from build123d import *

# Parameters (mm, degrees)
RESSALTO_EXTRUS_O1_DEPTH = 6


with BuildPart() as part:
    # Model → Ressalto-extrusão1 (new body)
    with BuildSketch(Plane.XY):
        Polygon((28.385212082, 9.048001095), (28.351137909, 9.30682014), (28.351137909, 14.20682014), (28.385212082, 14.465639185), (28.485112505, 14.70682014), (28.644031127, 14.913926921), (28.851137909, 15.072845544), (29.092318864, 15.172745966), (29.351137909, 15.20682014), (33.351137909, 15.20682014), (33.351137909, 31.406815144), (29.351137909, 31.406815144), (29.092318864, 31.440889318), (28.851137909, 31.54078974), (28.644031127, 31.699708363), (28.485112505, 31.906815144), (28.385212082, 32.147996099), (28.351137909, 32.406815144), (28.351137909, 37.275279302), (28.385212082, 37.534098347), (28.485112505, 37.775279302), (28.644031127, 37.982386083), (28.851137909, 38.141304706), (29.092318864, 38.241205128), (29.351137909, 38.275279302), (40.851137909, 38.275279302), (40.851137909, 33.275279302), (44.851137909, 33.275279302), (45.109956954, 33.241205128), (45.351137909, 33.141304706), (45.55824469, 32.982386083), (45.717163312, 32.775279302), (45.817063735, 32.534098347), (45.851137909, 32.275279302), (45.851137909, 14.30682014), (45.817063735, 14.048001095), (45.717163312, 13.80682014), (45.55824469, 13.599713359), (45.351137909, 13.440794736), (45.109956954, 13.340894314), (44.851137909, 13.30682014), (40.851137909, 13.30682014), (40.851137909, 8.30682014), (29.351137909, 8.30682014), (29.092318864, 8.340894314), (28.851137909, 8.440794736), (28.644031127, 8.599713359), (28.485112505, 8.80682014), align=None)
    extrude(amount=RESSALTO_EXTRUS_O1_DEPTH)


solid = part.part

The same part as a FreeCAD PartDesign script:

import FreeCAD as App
import Part
import Sketcher
from FreeCAD import Vector
Q = App.Units.Quantity

doc = App.newDocument("Part")
params = doc.addObject("Spreadsheet::Sheet", "Params")
for row, (alias, value) in enumerate([
    ("sketch1_width", "4 mm"),
    ("sketch1_height", "5 mm"),
    ("sketch1_width2", "11.5 mm"),
    ("sketch1_height2", "4.9 mm"),
    ("pad1_length", "6 mm"),
], start=1):
    params.set(f"A{row}", alias)
    params.set(f"B{row}", "=" + value)
    params.setAlias(f"B{row}", alias)

body = doc.addObject("PartDesign::Body", "Body")

# Sketch on XY plane
sketch1 = body.newObject("Sketcher::SketchObject", "Sketch")
sketch1.AttachmentSupport = (doc.getObject("XY_Plane"), [""])
sketch1.MapMode = "FlatFace"
sketch1.addGeometry([
    Part.LineSegment(Vector(28.351138, 9.30682, 0), Vector(28.385212, 9.048001, 0)),  # 0
    Part.LineSegment(Vector(28.385212, 9.048001, 0), Vector(28.485113, 8.80682, 0)),  # 1
    Part.LineSegment(Vector(28.485113, 8.80682, 0), Vector(28.644031, 8.599713, 0)),  # 2
    Part.LineSegment(Vector(28.644031, 8.599713, 0), Vector(28.851138, 8.440795, 0)),  # 3
    Part.LineSegment(Vector(28.851138, 8.440795, 0), Vector(29.092319, 8.340894, 0)),  # 4
    Part.LineSegment(Vector(29.092319, 8.340894, 0), Vector(29.351138, 8.30682, 0)),  # 5
    Part.LineSegment(Vector(29.351138, 8.30682, 0), Vector(40.851138, 8.30682, 0)),  # 6
    Part.LineSegment(Vector(40.851138, 8.30682, 0), Vector(40.851138, 13.30682, 0)),  # 7
    Part.LineSegment(Vector(40.851138, 13.30682, 0), Vector(44.851138, 13.30682, 0)),  # 8
    Part.LineSegment(Vector(44.851138, 13.30682, 0), Vector(45.109957, 13.340894, 0)),  # 9
    Part.LineSegment(Vector(45.109957, 13.340894, 0), Vector(45.351138, 13.440795, 0)),  # 10
    Part.LineSegment(Vector(45.351138, 13.440795, 0), Vector(45.558245, 13.599713, 0)),  # 11
    Part.LineSegment(Vector(45.558245, 13.599713, 0), Vector(45.717163, 13.80682, 0)),  # 12
    Part.LineSegment(Vector(45.717163, 13.80682, 0), Vector(45.817064, 14.048001, 0)),  # 13
    Part.LineSegment(Vector(45.817064, 14.048001, 0), Vector(45.851138, 14.30682, 0)),  # 14
    Part.LineSegment(Vector(45.851138, 14.30682, 0), Vector(45.851138, 32.275279, 0)),  # 15
    Part.LineSegment(Vector(45.851138, 32.275279, 0), Vector(45.817064, 32.534098, 0)),  # 16
    Part.LineSegment(Vector(45.817064, 32.534098, 0), Vector(45.717163, 32.775279, 0)),  # 17
    Part.LineSegment(Vector(45.717163, 32.775279, 0), Vector(45.558245, 32.982386, 0)),  # 18
    Part.LineSegment(Vector(45.558245, 32.982386, 0), Vector(45.351138, 33.141305, 0)),  # 19
    Part.LineSegment(Vector(45.351138, 33.141305, 0), Vector(45.109957, 33.241205, 0)),  # 20
    Part.LineSegment(Vector(45.109957, 33.241205, 0), Vector(44.851138, 33.275279, 0)),  # 21
    Part.LineSegment(Vector(44.851138, 33.275279, 0), Vector(40.851138, 33.275279, 0)),  # 22
    Part.LineSegment(Vector(40.851138, 33.275279, 0), Vector(40.851138, 38.275279, 0)),  # 23
    Part.LineSegment(Vector(40.851138, 38.275279, 0), Vector(29.351138, 38.275279, 0)),  # 24
    Part.LineSegment(Vector(29.351138, 38.275279, 0), Vector(29.092319, 38.241205, 0)),  # 25
    Part.LineSegment(Vector(29.092319, 38.241205, 0), Vector(28.851138, 38.141305, 0)),  # 26
    Part.LineSegment(Vector(28.851138, 38.141305, 0), Vector(28.644031, 37.982386, 0)),  # 27
    Part.LineSegment(Vector(28.644031, 37.982386, 0), Vector(28.485113, 37.775279, 0)),  # 28
    Part.LineSegment(Vector(28.485113, 37.775279, 0), Vector(28.385212, 37.534098, 0)),  # 29
    Part.LineSegment(Vector(28.385212, 37.534098, 0), Vector(28.351138, 37.275279, 0)),  # 30
    Part.LineSegment(Vector(28.351138, 37.275279, 0), Vector(28.351138, 32.406815, 0)),  # 31
    Part.LineSegment(Vector(28.351138, 32.406815, 0), Vector(28.385212, 32.147996, 0)),  # 32
    Part.LineSegment(Vector(28.385212, 32.147996, 0), Vector(28.485113, 31.906815, 0)),  # 33
    Part.LineSegment(Vector(28.485113, 31.906815, 0), Vector(28.644031, 31.699708, 0)),  # 34
    Part.LineSegment(Vector(28.644031, 31.699708, 0), Vector(28.851138, 31.54079, 0)),  # 35
    Part.LineSegment(Vector(28.851138, 31.54079, 0), Vector(29.092319, 31.440889, 0)),  # 36
    Part.LineSegment(Vector(29.092319, 31.440889, 0), Vector(29.351138, 31.406815, 0)),  # 37
    Part.LineSegment(Vector(29.351138, 31.406815, 0), Vector(33.351138, 31.406815, 0)),  # 38
    Part.LineSegment(Vector(33.351138, 31.406815, 0), Vector(33.351138, 15.20682, 0)),  # 39
    Part.LineSegment(Vector(33.351138, 15.20682, 0), Vector(29.351138, 15.20682, 0)),  # 40
    Part.LineSegment(Vector(29.351138, 15.20682, 0), Vector(29.092319, 15.172746, 0)),  # 41
    Part.LineSegment(Vector(29.092319, 15.172746, 0), Vector(28.851138, 15.072846, 0)),  # 42
    Part.LineSegment(Vector(28.851138, 15.072846, 0), Vector(28.644031, 14.913927, 0)),  # 43
    Part.LineSegment(Vector(28.644031, 14.913927, 0), Vector(28.485113, 14.70682, 0)),  # 44
    Part.LineSegment(Vector(28.485113, 14.70682, 0), Vector(28.385212, 14.465639, 0)),  # 45
    Part.LineSegment(Vector(28.385212, 14.465639, 0), Vector(28.351138, 14.20682, 0)),  # 46
    Part.LineSegment(Vector(28.351138, 14.20682, 0), Vector(28.351138, 9.30682, 0)),  # 47
], False)
sketch1.addConstraint([
    Sketcher.Constraint("Coincident", 0, 2, 1, 1),
    Sketcher.Constraint("Coincident", 1, 2, 2, 1),
    Sketcher.Constraint("Coincident", 2, 2, 3, 1),
    Sketcher.Constraint("Coincident", 3, 2, 4, 1),
    Sketcher.Constraint("Coincident", 4, 2, 5, 1),
    Sketcher.Constraint("Coincident", 5, 2, 6, 1),
    Sketcher.Constraint("Coincident", 6, 2, 7, 1),
    Sketcher.Constraint("Coincident", 7, 2, 8, 1),
    Sketcher.Constraint("Coincident", 8, 2, 9, 1),
    Sketcher.Constraint("Coincident", 9, 2, 10, 1),
    Sketcher.Constraint("Coincident", 10, 2, 11, 1),
    Sketcher.Constraint("Coincident", 11, 2, 12, 1),
    Sketcher.Constraint("Coincident", 12, 2, 13, 1),
    Sketcher.Constraint("Coincident", 13, 2, 14, 1),
    Sketcher.Constraint("Coincident", 14, 2, 15, 1),
    Sketcher.Constraint("Coincident", 15, 2, 16, 1),
    Sketcher.Constraint("Coincident", 16, 2, 17, 1),
    Sketcher.Constraint("Coincident", 17, 2, 18, 1),
    Sketcher.Constraint("Coincident", 18, 2, 19, 1),
    Sketcher.Constraint("Coincident", 19, 2, 20, 1),
    Sketcher.Constraint("Coincident", 20, 2, 21, 1),
    Sketcher.Constraint("Coincident", 21, 2, 22, 1),
    Sketcher.Constraint("Coincident", 22, 2, 23, 1),
    Sketcher.Constraint("Coincident", 23, 2, 24, 1),
    Sketcher.Constraint("Coincident", 24, 2, 25, 1),
    Sketcher.Constraint("Coincident", 25, 2, 26, 1),
    Sketcher.Constraint("Coincident", 26, 2, 27, 1),
    Sketcher.Constraint("Coincident", 27, 2, 28, 1),
    Sketcher.Constraint("Coincident", 28, 2, 29, 1),
    Sketcher.Constraint("Coincident", 29, 2, 30, 1),
    Sketcher.Constraint("Coincident", 30, 2, 31, 1),
    Sketcher.Constraint("Coincident", 31, 2, 32, 1),
    Sketcher.Constraint("Coincident", 32, 2, 33, 1),
    Sketcher.Constraint("Coincident", 33, 2, 34, 1),
    Sketcher.Constraint("Coincident", 34, 2, 35, 1),
    Sketcher.Constraint("Coincident", 35, 2, 36, 1),
    Sketcher.Constraint("Coincident", 36, 2, 37, 1),
    Sketcher.Constraint("Coincident", 37, 2, 38, 1),
    Sketcher.Constraint("Coincident", 38, 2, 39, 1),
    Sketcher.Constraint("Coincident", 39, 2, 40, 1),
    Sketcher.Constraint("Coincident", 40, 2, 41, 1),
    Sketcher.Constraint("Coincident", 41, 2, 42, 1),
    Sketcher.Constraint("Coincident", 42, 2, 43, 1),
    Sketcher.Constraint("Coincident", 43, 2, 44, 1),
    Sketcher.Constraint("Coincident", 44, 2, 45, 1),
    Sketcher.Constraint("Coincident", 45, 2, 46, 1),
    Sketcher.Constraint("Coincident", 46, 2, 47, 1),
    Sketcher.Constraint("Coincident", 47, 2, 0, 1),
    Sketcher.Constraint("Horizontal", 6),
    Sketcher.Constraint("Vertical", 7),
    Sketcher.Constraint("Horizontal", 8),
    Sketcher.Constraint("Vertical", 15),
    Sketcher.Constraint("Horizontal", 22),
    Sketcher.Constraint("Vertical", 23),
    Sketcher.Constraint("Horizontal", 24),
    Sketcher.Constraint("Vertical", 31),
    Sketcher.Constraint("Horizontal", 38),
    Sketcher.Constraint("Vertical", 39),
    Sketcher.Constraint("Horizontal", 40),
    Sketcher.Constraint("Vertical", 47),
    Sketcher.Constraint("Perpendicular", 0, 9),
    Sketcher.Constraint("Perpendicular", 1, 10),
    Sketcher.Constraint("Perpendicular", 2, 11),
    Sketcher.Constraint("Perpendicular", 3, 12),
    Sketcher.Constraint("Perpendicular", 4, 13),
    Sketcher.Constraint("Perpendicular", 5, 14),
    Sketcher.Constraint("Perpendicular", 9, 16),
    Sketcher.Constraint("Perpendicular", 10, 17),
    Sketcher.Constraint("Perpendicular", 11, 18),
    Sketcher.Constraint("Perpendicular", 12, 19),
    Sketcher.Constraint("Perpendicular", 13, 20),
    Sketcher.Constraint("Perpendicular", 14, 21),
    Sketcher.Constraint("Perpendicular", 16, 25),
    Sketcher.Constraint("Perpendicular", 17, 26),
    Sketcher.Constraint("Perpendicular", 18, 27),
    Sketcher.Constraint("Perpendicular", 19, 28),
    Sketcher.Constraint("Perpendicular", 20, 29),
    Sketcher.Constraint("Perpendicular", 21, 30),
    Sketcher.Constraint("Perpendicular", 25, 32),
    Sketcher.Constraint("Perpendicular", 26, 33),
    Sketcher.Constraint("Perpendicular", 27, 34),
    Sketcher.Constraint("Perpendicular", 28, 35),
    Sketcher.Constraint("Perpendicular", 29, 36),
    Sketcher.Constraint("Perpendicular", 30, 37),
    Sketcher.Constraint("Perpendicular", 32, 41),
    Sketcher.Constraint("Perpendicular", 33, 42),
    Sketcher.Constraint("Perpendicular", 34, 43),
    Sketcher.Constraint("Perpendicular", 35, 44),
    Sketcher.Constraint("Perpendicular", 36, 45),
    Sketcher.Constraint("Perpendicular", 37, 46),
    Sketcher.Constraint("Vertical", 13, 2, 16, 2),
    Sketcher.Constraint("Vertical", 12, 2, 17, 2),
    Sketcher.Constraint("Vertical", 11, 2, 18, 2),
    Sketcher.Constraint("Vertical", 10, 2, 19, 2),
    Sketcher.Constraint("Vertical", 9, 2, 20, 2),
    Sketcher.Constraint("Vertical", 8, 2, 21, 2),
    Sketcher.Constraint("Vertical", 7, 2, 22, 2),
    Sketcher.Constraint("Vertical", 5, 2, 24, 2),
    Sketcher.Constraint("Vertical", 4, 2, 25, 2),
    Sketcher.Constraint("Vertical", 3, 2, 26, 2),
    Sketcher.Constraint("Vertical", 2, 2, 27, 2),
    Sketcher.Constraint("Vertical", 1, 2, 28, 2),
    Sketcher.Constraint("Vertical", 0, 2, 29, 2),
    Sketcher.Constraint("Vertical", 29, 2, 32, 2),
    Sketcher.Constraint("Vertical", 28, 2, 33, 2),
    Sketcher.Constraint("Vertical", 27, 2, 34, 2),
    Sketcher.Constraint("Vertical", 26, 2, 35, 2),
    Sketcher.Constraint("Vertical", 25, 2, 36, 2),
    Sketcher.Constraint("Vertical", 24, 2, 37, 2),
    Sketcher.Constraint("Vertical", 37, 2, 40, 2),
    Sketcher.Constraint("Vertical", 36, 2, 41, 2),
    Sketcher.Constraint("Vertical", 35, 2, 42, 2),
    Sketcher.Constraint("Vertical", 34, 2, 43, 2),
    Sketcher.Constraint("Vertical", 33, 2, 44, 2),
    Sketcher.Constraint("Vertical", 32, 2, 45, 2),
    Sketcher.Constraint("Vertical", 31, 2, 46, 2),
    Sketcher.Constraint("Equal", 22, 38),
    Sketcher.Constraint("Equal", 7, 23),
    Sketcher.Constraint("Equal", 0, 1),
    Sketcher.Constraint("Equal", 1, 2),
    Sketcher.Constraint("Equal", 2, 3),
    Sketcher.Constraint("Equal", 3, 4),
    Sketcher.Constraint("Equal", 4, 5),
    Sketcher.Constraint("Equal", 5, 9),
    Sketcher.Constraint("Equal", 9, 10),
    Sketcher.Constraint("Equal", 10, 11),
    Sketcher.Constraint("Equal", 11, 12),
    Sketcher.Constraint("Equal", 12, 13),
    Sketcher.Constraint("Equal", 13, 14),
    Sketcher.Constraint("Equal", 14, 16),
    Sketcher.Constraint("Equal", 16, 17),
    Sketcher.Constraint("Equal", 17, 18),
    Sketcher.Constraint("DistanceX", 8, 1, 8, 2, 4.0),
    Sketcher.Constraint("DistanceY", 7, 1, 7, 2, 5.0),
    Sketcher.Constraint("DistanceX", 6, 1, 6, 2, 11.5),
    Sketcher.Constraint("DistanceY", 47, 2, 47, 1, 4.9),
    Sketcher.Constraint("Angle", 0, Q("-82.5 deg")),
    Sketcher.Constraint("Angle", 1, Q("-67.5 deg")),
    Sketcher.Constraint("Angle", 2, Q("-52.5 deg")),
    Sketcher.Constraint("DistanceX", 3, 2, 6, 2, 12.0),
    Sketcher.Constraint("DistanceY", -1, 1, 0, 2, 9.048001),
    Sketcher.Constraint("DistanceY", 15, 1, 15, 2, 17.968459),
    Sketcher.Constraint("DistanceY", 31, 2, 31, 1, 4.868464),
    Sketcher.Constraint("DistanceX", -1, 1, 2, 2, 28.644031),
])
sketch1.setExpression("Constraints[132]", "Params.sketch1_width")
sketch1.setExpression("Constraints[133]", "Params.sketch1_height")
sketch1.setExpression("Constraints[134]", "Params.sketch1_width2")
sketch1.setExpression("Constraints[135]", "Params.sketch1_height2")
pad1 = body.newObject("PartDesign::Pad", "Pad")
pad1.Profile = sketch1
pad1.setExpression("Length", "Params.pad1_length")

doc.recompute()
